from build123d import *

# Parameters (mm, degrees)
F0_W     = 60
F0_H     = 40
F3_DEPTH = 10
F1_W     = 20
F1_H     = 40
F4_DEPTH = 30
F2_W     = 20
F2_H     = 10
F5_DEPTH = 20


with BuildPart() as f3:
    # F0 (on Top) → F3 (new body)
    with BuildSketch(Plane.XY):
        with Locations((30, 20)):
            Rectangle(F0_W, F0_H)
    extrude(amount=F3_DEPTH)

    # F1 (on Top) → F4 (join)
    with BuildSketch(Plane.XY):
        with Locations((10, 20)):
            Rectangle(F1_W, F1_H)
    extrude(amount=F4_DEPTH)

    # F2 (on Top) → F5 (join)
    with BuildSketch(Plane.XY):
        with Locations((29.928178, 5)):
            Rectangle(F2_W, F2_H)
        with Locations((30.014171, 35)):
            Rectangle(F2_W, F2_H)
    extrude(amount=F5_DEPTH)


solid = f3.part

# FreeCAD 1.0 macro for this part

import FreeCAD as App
import Part
import Sketcher
from FreeCAD import Vector
Q = App.Units.Quantity

doc = App.newDocument("Part")
params = doc.addObject("Spreadsheet::Sheet", "Params")
for row, (alias, value) in enumerate([
    ("sketch1_width", "60 mm"),
    ("sketch1_height", "40 mm"),
    ("pad1_length", "10 mm"),
    ("sketch2_width", "20 mm"),
    ("sketch2_height", "40 mm"),
    ("pad2_length", "30 mm"),
    ("sketch3_width", "20 mm"),
    ("sketch3_height", "10 mm"),
    ("pad3_length", "20 mm"),
], start=1):
    params.set(f"A{row}", alias)
    params.set(f"B{row}", "=" + value)
    params.setAlias(f"B{row}", alias)

body = doc.addObject("PartDesign::Body", "Body")

# Sketch on XY plane
sketch1 = body.newObject("Sketcher::SketchObject", "Sketch")
sketch1.AttachmentSupport = (doc.getObject("XY_Plane"), [""])
sketch1.MapMode = "FlatFace"
sketch1.addGeometry([
    Part.LineSegment(Vector(0, 40, 0), Vector(0, 0, 0)),
    Part.LineSegment(Vector(0, 0, 0), Vector(60, 0, 0)),
    Part.LineSegment(Vector(60, 0, 0), Vector(60, 40, 0)),
    Part.LineSegment(Vector(60, 40, 0), Vector(0, 40, 0)),
], False)
sketch1.addConstraint([
    Sketcher.Constraint("Coincident", 0, 2, 1, 1),
    Sketcher.Constraint("Coincident", 1, 2, 2, 1),
    Sketcher.Constraint("Coincident", 2, 2, 3, 1),
    Sketcher.Constraint("Coincident", 3, 2, 0, 1),
    Sketcher.Constraint("Vertical", 0),
    Sketcher.Constraint("Horizontal", 1),
    Sketcher.Constraint("Vertical", 2),
    Sketcher.Constraint("Horizontal", 3),
    Sketcher.Constraint("Coincident", 0, 2, -1, 1),
    Sketcher.Constraint("DistanceX", 1, 1, 1, 2, Q("60 mm")),
    Sketcher.Constraint("DistanceY", 0, 2, 0, 1, Q("40 mm")),
])
sketch1.setExpression("Constraints[9]", "Params.sketch1_width")
sketch1.setExpression("Constraints[10]", "Params.sketch1_height")
pad1 = body.newObject("PartDesign::Pad", "Pad")
pad1.Profile = sketch1
pad1.setExpression("Length", "Params.pad1_length")

# Sketch on XY plane
sketch2 = body.newObject("Sketcher::SketchObject", "Sketch001")
sketch2.AttachmentSupport = (doc.getObject("XY_Plane"), [""])
sketch2.MapMode = "FlatFace"
sketch2.addGeometry([
    Part.LineSegment(Vector(0, 40, 0), Vector(0, 0, 0)),
    Part.LineSegment(Vector(0, 0, 0), Vector(20, 0, 0)),
    Part.LineSegment(Vector(20, 0, 0), Vector(20, 40, 0)),
    Part.LineSegment(Vector(20, 40, 0), Vector(0, 40, 0)),
], False)
sketch2.addConstraint([
    Sketcher.Constraint("Coincident", 0, 2, 1, 1),
    Sketcher.Constraint("Coincident", 1, 2, 2, 1),
    Sketcher.Constraint("Coincident", 2, 2, 3, 1),
    Sketcher.Constraint("Coincident", 3, 2, 0, 1),
    Sketcher.Constraint("Vertical", 0),
    Sketcher.Constraint("Horizontal", 1),
    Sketcher.Constraint("Vertical", 2),
    Sketcher.Constraint("Horizontal", 3),
    Sketcher.Constraint("Coincident", 0, 2, -1, 1),
    Sketcher.Constraint("DistanceX", 1, 1, 1, 2, Q("20 mm")),
    Sketcher.Constraint("DistanceY", 0, 2, 0, 1, Q("40 mm")),
])
sketch2.setExpression("Constraints[9]", "Params.sketch2_width")
sketch2.setExpression("Constraints[10]", "Params.sketch2_height")
pad2 = body.newObject("PartDesign::Pad", "Pad001")
pad2.Profile = sketch2
pad2.setExpression("Length", "Params.pad2_length")

# Sketch on XY plane
sketch3 = body.newObject("Sketcher::SketchObject", "Sketch002")
sketch3.AttachmentSupport = (doc.getObject("XY_Plane"), [""])
sketch3.MapMode = "FlatFace"
sketch3.addGeometry([
    Part.LineSegment(Vector(20, 10, 0), Vector(20, 0, 0)),  # 0
    Part.LineSegment(Vector(20, 0, 0), Vector(40, 0, 0)),  # 1
    Part.LineSegment(Vector(40, 0, 0), Vector(40, 10, 0)),  # 2
    Part.LineSegment(Vector(40, 10, 0), Vector(20, 10, 0)),  # 3
    Part.LineSegment(Vector(20, 40, 0), Vector(20, 30, 0)),  # 4
    Part.LineSegment(Vector(20, 30, 0), Vector(40, 30, 0)),  # 5
    Part.LineSegment(Vector(40, 30, 0), Vector(40, 40, 0)),  # 6
    Part.LineSegment(Vector(40, 40, 0), Vector(20, 40, 0)),  # 7
], False)
sketch3.addConstraint([
    Sketcher.Constraint("Coincident", 0, 2, 1, 1),
    Sketcher.Constraint("Coincident", 1, 2, 2, 1),
    Sketcher.Constraint("Coincident", 2, 2, 3, 1),
    Sketcher.Constraint("Coincident", 3, 2, 0, 1),
    Sketcher.Constraint("Coincident", 4, 2, 5, 1),
    Sketcher.Constraint("Coincident", 5, 2, 6, 1),
    Sketcher.Constraint("Coincident", 6, 2, 7, 1),
    Sketcher.Constraint("Coincident", 7, 2, 4, 1),
    Sketcher.Constraint("Vertical", 0),
    Sketcher.Constraint("Horizontal", 1),
    Sketcher.Constraint("Vertical", 2),
    Sketcher.Constraint("Horizontal", 3),
    Sketcher.Constraint("Vertical", 4),
    Sketcher.Constraint("Horizontal", 5),
    Sketcher.Constraint("Vertical", 6),
    Sketcher.Constraint("Horizontal", 7),
    Sketcher.Constraint("PointOnObject", 0, 2, -1),
    Sketcher.Constraint("Equal", 3, 5),
    Sketcher.Constraint("Equal", 2, 4),
    Sketcher.Constraint("DistanceX", 1, 1, 1, 2, Q("20 mm")),
    Sketcher.Constraint("DistanceY", 0, 2, 0, 1, Q("10 mm")),
    Sketcher.Constraint("DistanceY", -1, 1, 4, 2, Q("30 mm")),
    Sketcher.Constraint("DistanceX", -1, 1, 1, 2, Q("39.928178 mm")),
    Sketcher.Constraint("DistanceX", -1, 1, 4, 2, Q("20.014171 mm")),
])
sketch3.setExpression("Constraints[19]", "Params.sketch3_width")
sketch3.setExpression("Constraints[20]", "Params.sketch3_height")
pad3 = body.newObject("PartDesign::Pad", "Pad002")
pad3.Profile = sketch3
pad3.setExpression("Length", "Params.pad3_length")

doc.recompute()
